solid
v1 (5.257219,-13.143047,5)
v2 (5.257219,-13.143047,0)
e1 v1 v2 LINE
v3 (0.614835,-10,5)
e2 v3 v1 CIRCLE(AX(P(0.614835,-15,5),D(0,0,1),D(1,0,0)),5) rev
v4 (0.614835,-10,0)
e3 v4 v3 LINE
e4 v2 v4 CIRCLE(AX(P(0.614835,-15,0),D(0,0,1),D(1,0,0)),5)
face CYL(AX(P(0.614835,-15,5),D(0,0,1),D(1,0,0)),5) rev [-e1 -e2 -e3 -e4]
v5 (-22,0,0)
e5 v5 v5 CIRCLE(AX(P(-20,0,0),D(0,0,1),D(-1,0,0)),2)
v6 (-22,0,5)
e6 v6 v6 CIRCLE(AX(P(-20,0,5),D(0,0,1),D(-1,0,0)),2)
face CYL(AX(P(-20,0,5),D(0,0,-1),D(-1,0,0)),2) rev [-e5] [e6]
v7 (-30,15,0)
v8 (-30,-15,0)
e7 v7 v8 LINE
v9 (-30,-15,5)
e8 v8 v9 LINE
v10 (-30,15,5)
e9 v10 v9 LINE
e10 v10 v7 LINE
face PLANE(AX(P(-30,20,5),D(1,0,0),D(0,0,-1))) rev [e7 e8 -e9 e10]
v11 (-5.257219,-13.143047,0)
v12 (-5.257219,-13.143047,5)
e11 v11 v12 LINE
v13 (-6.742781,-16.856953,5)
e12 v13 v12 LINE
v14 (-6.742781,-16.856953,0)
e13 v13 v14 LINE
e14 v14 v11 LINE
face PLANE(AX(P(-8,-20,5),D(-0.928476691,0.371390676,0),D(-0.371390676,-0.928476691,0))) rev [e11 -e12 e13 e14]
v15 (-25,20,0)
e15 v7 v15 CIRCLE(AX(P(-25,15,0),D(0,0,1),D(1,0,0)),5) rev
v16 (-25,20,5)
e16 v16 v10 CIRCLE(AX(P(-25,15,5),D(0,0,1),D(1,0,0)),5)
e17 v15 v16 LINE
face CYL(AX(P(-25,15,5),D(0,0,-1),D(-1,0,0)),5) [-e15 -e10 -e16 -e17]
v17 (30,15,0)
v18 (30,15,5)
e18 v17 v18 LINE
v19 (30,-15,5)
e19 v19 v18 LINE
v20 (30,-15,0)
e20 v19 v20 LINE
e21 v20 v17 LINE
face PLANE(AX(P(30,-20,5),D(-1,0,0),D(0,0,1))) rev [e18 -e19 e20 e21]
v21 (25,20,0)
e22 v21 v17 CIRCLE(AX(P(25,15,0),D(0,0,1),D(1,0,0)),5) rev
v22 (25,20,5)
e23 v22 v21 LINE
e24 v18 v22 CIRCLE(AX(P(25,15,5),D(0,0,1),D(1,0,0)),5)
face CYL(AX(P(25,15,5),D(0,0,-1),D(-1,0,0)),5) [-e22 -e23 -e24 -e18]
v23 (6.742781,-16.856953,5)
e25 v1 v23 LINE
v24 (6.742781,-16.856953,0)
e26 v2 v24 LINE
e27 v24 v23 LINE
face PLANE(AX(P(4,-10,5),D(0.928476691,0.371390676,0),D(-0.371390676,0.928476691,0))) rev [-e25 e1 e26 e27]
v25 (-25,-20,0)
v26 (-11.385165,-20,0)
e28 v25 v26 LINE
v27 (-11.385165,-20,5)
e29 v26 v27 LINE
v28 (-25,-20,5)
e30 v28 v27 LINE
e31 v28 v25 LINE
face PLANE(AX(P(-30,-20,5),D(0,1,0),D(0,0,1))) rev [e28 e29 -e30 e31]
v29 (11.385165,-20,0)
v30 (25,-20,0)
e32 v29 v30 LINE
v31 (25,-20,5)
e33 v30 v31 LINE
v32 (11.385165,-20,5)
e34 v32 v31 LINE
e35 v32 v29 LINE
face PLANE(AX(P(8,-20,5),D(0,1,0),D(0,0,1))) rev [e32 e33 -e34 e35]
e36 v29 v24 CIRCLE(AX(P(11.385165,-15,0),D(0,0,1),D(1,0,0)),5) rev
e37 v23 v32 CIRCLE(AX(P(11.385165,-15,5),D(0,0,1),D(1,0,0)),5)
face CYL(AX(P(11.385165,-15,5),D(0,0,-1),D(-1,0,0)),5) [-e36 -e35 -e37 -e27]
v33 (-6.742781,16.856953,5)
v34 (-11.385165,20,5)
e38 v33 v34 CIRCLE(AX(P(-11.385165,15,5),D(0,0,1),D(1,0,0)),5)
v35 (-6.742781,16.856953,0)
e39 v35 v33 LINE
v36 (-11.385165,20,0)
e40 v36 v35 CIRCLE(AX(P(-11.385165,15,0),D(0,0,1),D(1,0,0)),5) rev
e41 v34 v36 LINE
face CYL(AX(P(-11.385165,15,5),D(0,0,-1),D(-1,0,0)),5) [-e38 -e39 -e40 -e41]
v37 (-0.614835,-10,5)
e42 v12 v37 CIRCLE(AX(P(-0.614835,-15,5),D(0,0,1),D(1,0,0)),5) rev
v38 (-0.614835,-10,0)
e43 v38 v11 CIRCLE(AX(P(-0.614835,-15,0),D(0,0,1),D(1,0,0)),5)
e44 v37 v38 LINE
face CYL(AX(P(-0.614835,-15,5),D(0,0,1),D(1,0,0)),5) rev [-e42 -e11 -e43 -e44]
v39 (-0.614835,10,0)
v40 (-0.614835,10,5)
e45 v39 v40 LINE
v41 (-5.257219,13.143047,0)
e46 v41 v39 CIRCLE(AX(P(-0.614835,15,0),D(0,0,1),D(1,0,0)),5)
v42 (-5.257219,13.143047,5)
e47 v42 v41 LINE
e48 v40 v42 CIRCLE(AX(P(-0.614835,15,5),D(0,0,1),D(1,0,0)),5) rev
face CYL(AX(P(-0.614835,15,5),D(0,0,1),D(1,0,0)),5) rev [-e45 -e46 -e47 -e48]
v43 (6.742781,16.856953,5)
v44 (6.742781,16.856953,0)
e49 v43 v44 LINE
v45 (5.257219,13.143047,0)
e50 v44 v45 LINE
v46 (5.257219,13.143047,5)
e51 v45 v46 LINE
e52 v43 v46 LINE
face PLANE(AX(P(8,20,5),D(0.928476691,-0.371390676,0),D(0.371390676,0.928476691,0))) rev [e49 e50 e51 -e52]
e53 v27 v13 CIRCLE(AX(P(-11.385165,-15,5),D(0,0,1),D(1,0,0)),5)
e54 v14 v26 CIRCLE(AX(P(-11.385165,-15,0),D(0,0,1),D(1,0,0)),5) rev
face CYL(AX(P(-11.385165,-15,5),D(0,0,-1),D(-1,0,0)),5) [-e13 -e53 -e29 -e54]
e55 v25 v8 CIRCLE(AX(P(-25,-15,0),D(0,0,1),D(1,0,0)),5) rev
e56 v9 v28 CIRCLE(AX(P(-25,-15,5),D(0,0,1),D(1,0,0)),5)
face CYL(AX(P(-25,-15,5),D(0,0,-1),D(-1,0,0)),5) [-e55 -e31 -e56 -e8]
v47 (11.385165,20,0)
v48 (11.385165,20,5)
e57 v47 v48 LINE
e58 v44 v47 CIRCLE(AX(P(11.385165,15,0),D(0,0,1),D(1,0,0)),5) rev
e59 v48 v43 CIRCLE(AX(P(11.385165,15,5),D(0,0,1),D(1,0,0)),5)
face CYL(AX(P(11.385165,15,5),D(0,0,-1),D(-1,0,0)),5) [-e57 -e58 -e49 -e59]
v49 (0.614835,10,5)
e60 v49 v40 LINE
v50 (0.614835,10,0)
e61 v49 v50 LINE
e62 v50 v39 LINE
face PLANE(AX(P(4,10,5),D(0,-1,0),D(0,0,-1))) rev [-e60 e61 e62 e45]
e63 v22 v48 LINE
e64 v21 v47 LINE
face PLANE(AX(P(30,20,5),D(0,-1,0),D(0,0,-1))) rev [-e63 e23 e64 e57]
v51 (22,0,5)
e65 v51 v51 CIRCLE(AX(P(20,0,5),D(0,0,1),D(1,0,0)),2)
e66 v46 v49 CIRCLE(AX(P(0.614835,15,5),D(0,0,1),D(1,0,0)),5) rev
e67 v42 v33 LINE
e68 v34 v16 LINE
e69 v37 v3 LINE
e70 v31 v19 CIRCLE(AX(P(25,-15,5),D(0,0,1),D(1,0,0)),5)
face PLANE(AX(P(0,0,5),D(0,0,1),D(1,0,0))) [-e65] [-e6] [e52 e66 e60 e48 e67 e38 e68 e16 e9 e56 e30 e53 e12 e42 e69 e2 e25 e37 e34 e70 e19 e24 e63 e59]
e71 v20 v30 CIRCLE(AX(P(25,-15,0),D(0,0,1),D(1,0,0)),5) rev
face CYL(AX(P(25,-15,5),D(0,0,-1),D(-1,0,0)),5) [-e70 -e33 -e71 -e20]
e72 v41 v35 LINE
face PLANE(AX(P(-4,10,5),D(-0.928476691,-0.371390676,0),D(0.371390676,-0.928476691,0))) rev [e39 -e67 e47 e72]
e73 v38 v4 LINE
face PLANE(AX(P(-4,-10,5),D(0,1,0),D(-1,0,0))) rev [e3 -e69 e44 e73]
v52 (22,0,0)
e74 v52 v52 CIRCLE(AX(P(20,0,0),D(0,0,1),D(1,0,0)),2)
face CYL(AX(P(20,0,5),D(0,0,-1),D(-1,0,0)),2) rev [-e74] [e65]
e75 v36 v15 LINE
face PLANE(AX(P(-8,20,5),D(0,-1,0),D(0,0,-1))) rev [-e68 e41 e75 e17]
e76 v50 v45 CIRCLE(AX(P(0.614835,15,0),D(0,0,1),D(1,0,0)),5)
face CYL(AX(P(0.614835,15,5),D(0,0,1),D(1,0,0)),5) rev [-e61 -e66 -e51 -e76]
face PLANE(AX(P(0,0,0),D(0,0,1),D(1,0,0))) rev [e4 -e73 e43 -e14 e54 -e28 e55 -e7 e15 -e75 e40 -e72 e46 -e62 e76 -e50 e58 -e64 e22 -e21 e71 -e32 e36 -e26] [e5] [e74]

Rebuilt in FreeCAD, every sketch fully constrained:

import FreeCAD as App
import Part
import Sketcher
Q = App.Units.Quantity


def edges_at(feature, points):
    """Names of the edges that pass closest to the given points."""
    edges = feature.Shape.Edges
    near = lambda p: min(range(len(edges)), key=lambda i: edges[i].distToShape(Part.Vertex(*p))[0])
    return sorted({f"Edge{near(p) + 1}" for p in points})

doc = App.newDocument("Part")
body = doc.addObject("PartDesign::Body", "Body")

sketch1 = body.newObject("Sketcher::SketchObject", "Sketch")
sketch1.AttachmentSupport = (doc.getObject("XY_Plane"), [""])
sketch1.MapMode = "FlatFace"
sketch1.addGeometry([
    Part.LineSegment(App.Vector(-30, 20, 0), App.Vector(-30, -20, 0)),
    Part.LineSegment(App.Vector(-30, -20, 0), App.Vector(-8, -20, 0)),
    Part.LineSegment(App.Vector(-8, -20, 0), App.Vector(-4, -10, 0)),
    Part.LineSegment(App.Vector(-4, -10, 0), App.Vector(4, -10, 0)),
    Part.LineSegment(App.Vector(4, -10, 0), App.Vector(8, -20, 0)),
    Part.LineSegment(App.Vector(8, -20, 0), App.Vector(30, -20, 0)),
    Part.LineSegment(App.Vector(30, -20, 0), App.Vector(30, 20, 0)),
    Part.LineSegment(App.Vector(30, 20, 0), App.Vector(8, 20, 0)),
    Part.LineSegment(App.Vector(8, 20, 0), App.Vector(4, 10, 0)),
    Part.LineSegment(App.Vector(4, 10, 0), App.Vector(-4, 10, 0)),
    Part.LineSegment(App.Vector(-4, 10, 0), App.Vector(-8, 20, 0)),
    Part.LineSegment(App.Vector(-8, 20, 0), App.Vector(-30, 20, 0)),
    Part.Circle(App.Vector(-20, 0, 0), App.Vector(0, 0, 1), 2),
    Part.Circle(App.Vector(20, 0, 0), App.Vector(0, 0, 1), 2),
], False)
sketch1.addConstraint([
    Sketcher.Constraint("Coincident", 0, 2, 1, 1),
    Sketcher.Constraint("Coincident", 1, 2, 2, 1),
    Sketcher.Constraint("Coincident", 2, 2, 3, 1),
    Sketcher.Constraint("Coincident", 3, 2, 4, 1),
    Sketcher.Constraint("Coincident", 4, 2, 5, 1),
    Sketcher.Constraint("Coincident", 5, 2, 6, 1),
    Sketcher.Constraint("Coincident", 6, 2, 7, 1),
    Sketcher.Constraint("Coincident", 7, 2, 8, 1),
    Sketcher.Constraint("Coincident", 8, 2, 9, 1),
    Sketcher.Constraint("Coincident", 9, 2, 10, 1),
    Sketcher.Constraint("Coincident", 10, 2, 11, 1),
    Sketcher.Constraint("Coincident", 11, 2, 0, 1),
    Sketcher.Constraint("Vertical", 0),
    Sketcher.Constraint("Horizontal", 1),
    Sketcher.Constraint("Horizontal", 3),
    Sketcher.Constraint("Horizontal", 5),
    Sketcher.Constraint("Vertical", 6),
    Sketcher.Constraint("Horizontal", 7),
    Sketcher.Constraint("Horizontal", 9),
    Sketcher.Constraint("Horizontal", 11),
    Sketcher.Constraint("Equal", 12, 13),
    Sketcher.Constraint("Symmetric", 12, 3, 13, 3, -1, 1),
    Sketcher.Constraint("Symmetric", 0, 2, 6, 2, -1, 1),
    Sketcher.Constraint("Symmetric", 2, 2, 8, 2, -1, 1),
    Sketcher.Constraint("Symmetric", 4, 2, 10, 2, -1, 1),
    Sketcher.Constraint("Symmetric", 1, 2, 4, 2, -2),
    Sketcher.Constraint("PointOnObject", 12, 3, -1),
    Sketcher.Constraint("Parallel", 2, 8),
    Sketcher.Constraint("Parallel", 4, 10),
    Sketcher.Constraint("Vertical", 3, 2, 8, 2),
    Sketcher.Constraint("Diameter", 12, Q("4 mm")),
    Sketcher.Constraint("DistanceX", 1, 1, 1, 2, Q("22 mm")),
    Sketcher.Constraint("DistanceX", 3, 1, 3, 2, Q("8 mm")),
    Sketcher.Constraint("DistanceY", 0, 2, 0, 1, Q("40 mm")),
    Sketcher.Constraint("DistanceX", 12, 3, -1, 1, Q("20 mm")),
    Sketcher.Constraint("DistanceX", 0, 2, -1, 1, Q("30 mm")),
    Sketcher.Constraint("DistanceY", 2, 2, -1, 1, Q("10 mm")),
])
pad1 = body.newObject("PartDesign::Pad", "Pad")
pad1.Profile = sketch1
pad1.Length = 5
doc.recompute()

fillet = body.newObject("PartDesign::Fillet", "Fillet")
fillet.Base = (pad1, edges_at(pad1, [
    (-8, 20, 2.5),
    (-4, 10, 2.5),
    (4, 10, 2.5),
    (8, 20, 2.5),
    (30, 20, 2.5),
    (30, -20, 2.5),
    (8, -20, 2.5),
    (4, -10, 2.5),
    (-4, -10, 2.5),
    (-8, -20, 2.5),
    (-30, -20, 2.5),
    (-30, 20, 2.5),
]))
fillet.Radius = 5

doc.recompute()
